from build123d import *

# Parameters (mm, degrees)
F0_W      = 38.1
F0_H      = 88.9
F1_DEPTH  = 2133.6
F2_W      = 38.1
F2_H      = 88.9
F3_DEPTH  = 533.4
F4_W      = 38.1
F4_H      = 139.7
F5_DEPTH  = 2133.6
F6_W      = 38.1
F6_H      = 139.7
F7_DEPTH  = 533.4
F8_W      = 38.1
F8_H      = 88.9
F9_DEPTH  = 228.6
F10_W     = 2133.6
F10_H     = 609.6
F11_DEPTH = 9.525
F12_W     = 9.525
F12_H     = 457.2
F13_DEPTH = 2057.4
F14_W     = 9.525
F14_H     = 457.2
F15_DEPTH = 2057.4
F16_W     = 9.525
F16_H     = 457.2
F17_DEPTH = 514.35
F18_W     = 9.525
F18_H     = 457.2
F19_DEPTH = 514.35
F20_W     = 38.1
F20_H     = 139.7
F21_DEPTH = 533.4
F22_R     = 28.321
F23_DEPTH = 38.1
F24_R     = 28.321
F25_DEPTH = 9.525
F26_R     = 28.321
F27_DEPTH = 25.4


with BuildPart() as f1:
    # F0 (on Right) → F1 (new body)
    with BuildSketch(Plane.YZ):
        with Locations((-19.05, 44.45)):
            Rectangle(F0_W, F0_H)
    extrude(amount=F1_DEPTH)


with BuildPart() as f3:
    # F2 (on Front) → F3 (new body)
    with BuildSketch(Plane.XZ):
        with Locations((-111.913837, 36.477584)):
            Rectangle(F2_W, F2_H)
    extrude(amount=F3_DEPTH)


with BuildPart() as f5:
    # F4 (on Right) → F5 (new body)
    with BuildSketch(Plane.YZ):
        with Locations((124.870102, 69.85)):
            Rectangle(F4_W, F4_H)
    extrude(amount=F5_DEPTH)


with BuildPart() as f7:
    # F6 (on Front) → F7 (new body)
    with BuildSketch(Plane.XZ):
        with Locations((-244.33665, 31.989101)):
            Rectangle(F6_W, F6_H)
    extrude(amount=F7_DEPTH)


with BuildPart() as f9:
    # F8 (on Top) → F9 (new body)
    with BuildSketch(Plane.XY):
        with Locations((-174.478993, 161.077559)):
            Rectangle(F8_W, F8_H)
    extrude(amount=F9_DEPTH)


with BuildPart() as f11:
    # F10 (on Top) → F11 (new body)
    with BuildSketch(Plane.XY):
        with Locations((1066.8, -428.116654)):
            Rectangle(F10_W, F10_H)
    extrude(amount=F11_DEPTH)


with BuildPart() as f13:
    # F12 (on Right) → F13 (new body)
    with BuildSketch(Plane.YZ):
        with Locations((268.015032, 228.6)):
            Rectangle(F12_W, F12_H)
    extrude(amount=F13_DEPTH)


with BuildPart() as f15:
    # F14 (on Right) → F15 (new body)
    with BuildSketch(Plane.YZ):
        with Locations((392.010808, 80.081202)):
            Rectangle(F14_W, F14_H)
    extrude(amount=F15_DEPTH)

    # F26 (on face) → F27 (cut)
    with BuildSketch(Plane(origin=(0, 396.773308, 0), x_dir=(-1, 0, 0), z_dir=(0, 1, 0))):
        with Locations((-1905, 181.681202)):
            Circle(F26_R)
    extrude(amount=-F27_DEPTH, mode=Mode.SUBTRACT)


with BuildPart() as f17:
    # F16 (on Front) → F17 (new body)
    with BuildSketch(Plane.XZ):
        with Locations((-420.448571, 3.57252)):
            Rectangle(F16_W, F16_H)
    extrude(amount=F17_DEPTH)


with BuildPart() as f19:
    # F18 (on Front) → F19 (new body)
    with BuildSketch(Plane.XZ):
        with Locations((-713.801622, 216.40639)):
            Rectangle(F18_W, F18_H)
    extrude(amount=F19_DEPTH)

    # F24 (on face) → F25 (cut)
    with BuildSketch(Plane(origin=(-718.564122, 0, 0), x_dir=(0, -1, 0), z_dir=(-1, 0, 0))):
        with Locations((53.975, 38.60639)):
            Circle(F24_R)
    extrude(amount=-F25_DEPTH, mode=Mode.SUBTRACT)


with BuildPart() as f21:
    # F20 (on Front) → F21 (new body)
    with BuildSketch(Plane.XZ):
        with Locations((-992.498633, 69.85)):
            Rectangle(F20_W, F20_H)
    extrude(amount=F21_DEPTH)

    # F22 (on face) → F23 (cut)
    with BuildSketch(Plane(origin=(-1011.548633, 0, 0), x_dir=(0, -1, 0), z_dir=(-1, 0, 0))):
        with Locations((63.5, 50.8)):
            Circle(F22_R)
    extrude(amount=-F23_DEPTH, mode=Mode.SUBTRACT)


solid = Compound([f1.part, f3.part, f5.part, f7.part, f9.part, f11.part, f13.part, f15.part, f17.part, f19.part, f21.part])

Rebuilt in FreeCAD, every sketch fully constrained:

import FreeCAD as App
import Part
import Sketcher

V = App.Vector
Q = App.Units.Quantity

doc = App.newDocument("Part")
body = doc.addObject("PartDesign::Body", "Body")

# Sketch on YZ plane
sketch1 = body.newObject("Sketcher::SketchObject", "Sketch")
sketch1.AttachmentSupport = (doc.getObject("YZ_Plane"), [""])
sketch1.MapMode = "FlatFace"
sketch1.addGeometry(Part.LineSegment(V(-38.1, 88.9, 0), V(-38.1, 0, 0)), False)
sketch1.addGeometry(Part.LineSegment(V(-38.1, 0, 0), V(0, 0, 0)), False)
sketch1.addGeometry(Part.LineSegment(V(0, 0, 0), V(0, 88.9, 0)), False)
sketch1.addGeometry(Part.LineSegment(V(0, 88.9, 0), V(-38.1, 88.9, 0)), False)
sketch1.addConstraint(Sketcher.Constraint("Coincident", 0, 2, 1, 1))
sketch1.addConstraint(Sketcher.Constraint("Coincident", 1, 2, 2, 1))
sketch1.addConstraint(Sketcher.Constraint("Coincident", 2, 2, 3, 1))
sketch1.addConstraint(Sketcher.Constraint("Coincident", 3, 2, 0, 1))
sketch1.addConstraint(Sketcher.Constraint("Vertical", 0))
sketch1.addConstraint(Sketcher.Constraint("Horizontal", 1))
sketch1.addConstraint(Sketcher.Constraint("Vertical", 2))
sketch1.addConstraint(Sketcher.Constraint("Horizontal", 3))
sketch1.addConstraint(Sketcher.Constraint("Coincident", 1, 2, -1, 1))
sketch1.addConstraint(Sketcher.Constraint("DistanceX", 1, 1, 1, 2, Q("1.5 in")))
sketch1.addConstraint(Sketcher.Constraint("DistanceY", 0, 2, 0, 1, Q("3.5 in")))
pad1 = body.newObject("PartDesign::Pad", "Pad")
pad1.Profile = sketch1
pad1.Length = Q("84 in")
body2 = doc.addObject("PartDesign::Body", "Body001")

# Sketch on XZ plane
sketch2 = body2.newObject("Sketcher::SketchObject", "Sketch001")
sketch2.AttachmentSupport = (doc.getObject("XZ_Plane001"), [""])
sketch2.MapMode = "FlatFace"
sketch2.addGeometry(Part.LineSegment(V(-130.963837, 80.927584, 0), V(-130.963837, -7.972416, 0)), False)
sketch2.addGeometry(Part.LineSegment(V(-130.963837, -7.972416, 0), V(-92.863837, -7.972416, 0)), False)
sketch2.addGeometry(Part.LineSegment(V(-92.863837, -7.972416, 0), V(-92.863837, 80.927584, 0)), False)
sketch2.addGeometry(Part.LineSegment(V(-92.863837, 80.927584, 0), V(-130.963837, 80.927584, 0)), False)
sketch2.addConstraint(Sketcher.Constraint("Coincident", 0, 2, 1, 1))
sketch2.addConstraint(Sketcher.Constraint("Coincident", 1, 2, 2, 1))
sketch2.addConstraint(Sketcher.Constraint("Coincident", 2, 2, 3, 1))
sketch2.addConstraint(Sketcher.Constraint("Coincident", 3, 2, 0, 1))
sketch2.addConstraint(Sketcher.Constraint("Vertical", 0))
sketch2.addConstraint(Sketcher.Constraint("Horizontal", 1))
sketch2.addConstraint(Sketcher.Constraint("Vertical", 2))
sketch2.addConstraint(Sketcher.Constraint("Horizontal", 3))
sketch2.addConstraint(Sketcher.Constraint("DistanceX", 1, 1, 1, 2, Q("1.5 in")))
sketch2.addConstraint(Sketcher.Constraint("DistanceY", 0, 2, 0, 1, Q("3.5 in")))
sketch2.addConstraint(Sketcher.Constraint("DistanceX", 0, 2, -1, 1, Q("130.963837 mm")))
sketch2.addConstraint(Sketcher.Constraint("DistanceY", 0, 2, -1, 1, Q("7.972416 mm")))
pad2 = body2.newObject("PartDesign::Pad", "Pad001")
pad2.Profile = sketch2
pad2.Length = Q("21 in")
body3 = doc.addObject("PartDesign::Body", "Body002")

# Sketch on YZ plane
sketch3 = body3.newObject("Sketcher::SketchObject", "Sketch002")
sketch3.AttachmentSupport = (doc.getObject("YZ_Plane002"), [""])
sketch3.MapMode = "FlatFace"
sketch3.addGeometry(Part.LineSegment(V(105.820102, 139.7, 0), V(105.820102, 0, 0)), False)
sketch3.addGeometry(Part.LineSegment(V(105.820102, 0, 0), V(143.920102, 0, 0)), False)
sketch3.addGeometry(Part.LineSegment(V(143.920102, 0, 0), V(143.920102, 139.7, 0)), False)
sketch3.addGeometry(Part.LineSegment(V(143.920102, 139.7, 0), V(105.820102, 139.7, 0)), False)
sketch3.addConstraint(Sketcher.Constraint("Coincident", 0, 2, 1, 1))
sketch3.addConstraint(Sketcher.Constraint("Coincident", 1, 2, 2, 1))
sketch3.addConstraint(Sketcher.Constraint("Coincident", 2, 2, 3, 1))
sketch3.addConstraint(Sketcher.Constraint("Coincident", 3, 2, 0, 1))
sketch3.addConstraint(Sketcher.Constraint("Vertical", 0))
sketch3.addConstraint(Sketcher.Constraint("Horizontal", 1))
sketch3.addConstraint(Sketcher.Constraint("Vertical", 2))
sketch3.addConstraint(Sketcher.Constraint("Horizontal", 3))
sketch3.addConstraint(Sketcher.Constraint("PointOnObject", 0, 2, -1))
sketch3.addConstraint(Sketcher.Constraint("DistanceX", 1, 1, 1, 2, Q("1.5 in")))
sketch3.addConstraint(Sketcher.Constraint("DistanceY", 0, 2, 0, 1, Q("5.5 in")))
sketch3.addConstraint(Sketcher.Constraint("DistanceX", -1, 1, 0, 2, Q("105.820102 mm")))
pad3 = body3.newObject("PartDesign::Pad", "Pad002")
pad3.Profile = sketch3
pad3.Length = Q("84 in")
body4 = doc.addObject("PartDesign::Body", "Body003")

# Sketch on XZ plane
sketch4 = body4.newObject("Sketcher::SketchObject", "Sketch003")
sketch4.AttachmentSupport = (doc.getObject("XZ_Plane003"), [""])
sketch4.MapMode = "FlatFace"
sketch4.addGeometry(Part.LineSegment(V(-263.38665, 101.839101, 0), V(-263.38665, -37.860899, 0)), False)
sketch4.addGeometry(Part.LineSegment(V(-263.38665, -37.860899, 0), V(-225.28665, -37.860899, 0)), False)
sketch4.addGeometry(Part.LineSegment(V(-225.28665, -37.860899, 0), V(-225.28665, 101.839101, 0)), False)
sketch4.addGeometry(Part.LineSegment(V(-225.28665, 101.839101, 0), V(-263.38665, 101.839101, 0)), False)
sketch4.addConstraint(Sketcher.Constraint("Coincident", 0, 2, 1, 1))
sketch4.addConstraint(Sketcher.Constraint("Coincident", 1, 2, 2, 1))
sketch4.addConstraint(Sketcher.Constraint("Coincident", 2, 2, 3, 1))
sketch4.addConstraint(Sketcher.Constraint("Coincident", 3, 2, 0, 1))
sketch4.addConstraint(Sketcher.Constraint("Vertical", 0))
sketch4.addConstraint(Sketcher.Constraint("Horizontal", 1))
sketch4.addConstraint(Sketcher.Constraint("Vertical", 2))
sketch4.addConstraint(Sketcher.Constraint("Horizontal", 3))
sketch4.addConstraint(Sketcher.Constraint("DistanceX", 1, 1, 1, 2, Q("1.5 in")))
sketch4.addConstraint(Sketcher.Constraint("DistanceY", 0, 2, 0, 1, Q("5.5 in")))
sketch4.addConstraint(Sketcher.Constraint("DistanceY", 0, 2, -1, 1, Q("37.860899 mm")))
sketch4.addConstraint(Sketcher.Constraint("DistanceX", 0, 2, -1, 1, Q("263.38665 mm")))
pad4 = body4.newObject("PartDesign::Pad", "Pad003")
pad4.Profile = sketch4
pad4.Length = Q("21 in")
body5 = doc.addObject("PartDesign::Body", "Body004")

# Sketch on XY plane
sketch5 = body5.newObject("Sketcher::SketchObject", "Sketch004")
sketch5.AttachmentSupport = (doc.getObject("XY_Plane004"), [""])
sketch5.MapMode = "FlatFace"
sketch5.addGeometry(Part.LineSegment(V(-193.528993, 205.527559, 0), V(-193.528993, 116.627559, 0)), False)
sketch5.addGeometry(Part.LineSegment(V(-193.528993, 116.627559, 0), V(-155.428993, 116.627559, 0)), False)
sketch5.addGeometry(Part.LineSegment(V(-155.428993, 116.627559, 0), V(-155.428993, 205.527559, 0)), False)
sketch5.addGeometry(Part.LineSegment(V(-155.428993, 205.527559, 0), V(-193.528993, 205.527559, 0)), False)
sketch5.addConstraint(Sketcher.Constraint("Coincident", 0, 2, 1, 1))
sketch5.addConstraint(Sketcher.Constraint("Coincident", 1, 2, 2, 1))
sketch5.addConstraint(Sketcher.Constraint("Coincident", 2, 2, 3, 1))
sketch5.addConstraint(Sketcher.Constraint("Coincident", 3, 2, 0, 1))
sketch5.addConstraint(Sketcher.Constraint("Vertical", 0))
sketch5.addConstraint(Sketcher.Constraint("Horizontal", 1))
sketch5.addConstraint(Sketcher.Constraint("Vertical", 2))
sketch5.addConstraint(Sketcher.Constraint("Horizontal", 3))
sketch5.addConstraint(Sketcher.Constraint("DistanceX", 1, 1, 1, 2, Q("1.5 in")))
sketch5.addConstraint(Sketcher.Constraint("DistanceY", 0, 2, 0, 1, Q("3.5 in")))
sketch5.addConstraint(Sketcher.Constraint("DistanceY", -1, 1, 0, 2, Q("116.627559 mm")))
sketch5.addConstraint(Sketcher.Constraint("DistanceX", 0, 2, -1, 1, Q("193.528993 mm")))
pad5 = body5.newObject("PartDesign::Pad", "Pad004")
pad5.Profile = sketch5
pad5.Length = Q("9 in")
body6 = doc.addObject("PartDesign::Body", "Body005")

# Sketch on XY plane
sketch6 = body6.newObject("Sketcher::SketchObject", "Sketch005")
sketch6.AttachmentSupport = (doc.getObject("XY_Plane005"), [""])
sketch6.MapMode = "FlatFace"
sketch6.addGeometry(Part.LineSegment(V(0, -123.316654, 0), V(0, -732.916654, 0)), False)
sketch6.addGeometry(Part.LineSegment(V(0, -732.916654, 0), V(2133.6, -732.916654, 0)), False)
sketch6.addGeometry(Part.LineSegment(V(2133.6, -732.916654, 0), V(2133.6, -123.316654, 0)), False)
sketch6.addGeometry(Part.LineSegment(V(2133.6, -123.316654, 0), V(0, -123.316654, 0)), False)
sketch6.addConstraint(Sketcher.Constraint("Coincident", 0, 2, 1, 1))
sketch6.addConstraint(Sketcher.Constraint("Coincident", 1, 2, 2, 1))
sketch6.addConstraint(Sketcher.Constraint("Coincident", 2, 2, 3, 1))
sketch6.addConstraint(Sketcher.Constraint("Coincident", 3, 2, 0, 1))
sketch6.addConstraint(Sketcher.Constraint("Vertical", 0))
sketch6.addConstraint(Sketcher.Constraint("Horizontal", 1))
sketch6.addConstraint(Sketcher.Constraint("Vertical", 2))
sketch6.addConstraint(Sketcher.Constraint("Horizontal", 3))
sketch6.addConstraint(Sketcher.Constraint("PointOnObject", 0, 2, -2))
sketch6.addConstraint(Sketcher.Constraint("DistanceX", 1, 1, 1, 2, Q("84 in")))
sketch6.addConstraint(Sketcher.Constraint("DistanceY", 0, 2, 0, 1, Q("24 in")))
sketch6.addConstraint(Sketcher.Constraint("DistanceY", 0, 2, -1, 1, Q("732.916654 mm")))
pad6 = body6.newObject("PartDesign::Pad", "Pad005")
pad6.Profile = sketch6
pad6.Length = Q("0.375 in")
body7 = doc.addObject("PartDesign::Body", "Body006")

# Sketch on YZ plane
sketch7 = body7.newObject("Sketcher::SketchObject", "Sketch006")
sketch7.AttachmentSupport = (doc.getObject("YZ_Plane006"), [""])
sketch7.MapMode = "FlatFace"
sketch7.addGeometry(Part.LineSegment(V(263.252532, 457.2, 0), V(263.252532, 0, 0)), False)
sketch7.addGeometry(Part.LineSegment(V(263.252532, 0, 0), V(272.777532, 0, 0)), False)
sketch7.addGeometry(Part.LineSegment(V(272.777532, 0, 0), V(272.777532, 457.2, 0)), False)
sketch7.addGeometry(Part.LineSegment(V(272.777532, 457.2, 0), V(263.252532, 457.2, 0)), False)
sketch7.addConstraint(Sketcher.Constraint("Coincident", 0, 2, 1, 1))
sketch7.addConstraint(Sketcher.Constraint("Coincident", 1, 2, 2, 1))
sketch7.addConstraint(Sketcher.Constraint("Coincident", 2, 2, 3, 1))
sketch7.addConstraint(Sketcher.Constraint("Coincident", 3, 2, 0, 1))
sketch7.addConstraint(Sketcher.Constraint("Vertical", 0))
sketch7.addConstraint(Sketcher.Constraint("Horizontal", 1))
sketch7.addConstraint(Sketcher.Constraint("Vertical", 2))
sketch7.addConstraint(Sketcher.Constraint("Horizontal", 3))
sketch7.addConstraint(Sketcher.Constraint("PointOnObject", 0, 2, -1))
sketch7.addConstraint(Sketcher.Constraint("DistanceY", 0, 2, 0, 1, Q("18 in")))
sketch7.addConstraint(Sketcher.Constraint("DistanceX", 1, 1, 1, 2, Q("0.375 in")))
sketch7.addConstraint(Sketcher.Constraint("DistanceX", -1, 1, 0, 2, Q("263.252532 mm")))
pad7 = body7.newObject("PartDesign::Pad", "Pad006")
pad7.Profile = sketch7
pad7.Length = Q("81 in")
body8 = doc.addObject("PartDesign::Body", "Body007")

# Sketch on YZ plane
sketch8 = body8.newObject("Sketcher::SketchObject", "Sketch007")
sketch8.AttachmentSupport = (doc.getObject("YZ_Plane007"), [""])
sketch8.MapMode = "FlatFace"
sketch8.addGeometry(Part.LineSegment(V(387.248308, 308.681202, 0), V(387.248308, -148.518798, 0)), False)
sketch8.addGeometry(Part.LineSegment(V(387.248308, -148.518798, 0), V(396.773308, -148.518798, 0)), False)
sketch8.addGeometry(Part.LineSegment(V(396.773308, -148.518798, 0), V(396.773308, 308.681202, 0)), False)
sketch8.addGeometry(Part.LineSegment(V(396.773308, 308.681202, 0), V(387.248308, 308.681202, 0)), False)
sketch8.addConstraint(Sketcher.Constraint("Coincident", 0, 2, 1, 1))
sketch8.addConstraint(Sketcher.Constraint("Coincident", 1, 2, 2, 1))
sketch8.addConstraint(Sketcher.Constraint("Coincident", 2, 2, 3, 1))
sketch8.addConstraint(Sketcher.Constraint("Coincident", 3, 2, 0, 1))
sketch8.addConstraint(Sketcher.Constraint("Vertical", 0))
sketch8.addConstraint(Sketcher.Constraint("Horizontal", 1))
sketch8.addConstraint(Sketcher.Constraint("Vertical", 2))
sketch8.addConstraint(Sketcher.Constraint("Horizontal", 3))
sketch8.addConstraint(Sketcher.Constraint("DistanceY", 0, 2, 0, 1, Q("18 in")))
sketch8.addConstraint(Sketcher.Constraint("DistanceX", 1, 1, 1, 2, Q("0.375 in")))
sketch8.addConstraint(Sketcher.Constraint("DistanceY", 0, 2, -1, 1, Q("148.518798 mm")))
sketch8.addConstraint(Sketcher.Constraint("DistanceX", -1, 1, 0, 2, Q("387.248308 mm")))
pad8 = body8.newObject("PartDesign::Pad", "Pad007")
pad8.Profile = sketch8
pad8.Length = Q("81 in")

# Sketch on XZ plane
sketch9 = body8.newObject("Sketcher::SketchObject", "Sketch008")
sketch9.AttachmentSupport = (doc.getObject("XZ_Plane007"), [""])
sketch9.MapMode = "FlatFace"
sketch9.AttachmentOffset = App.Placement(V(0, 0, -396.773308), App.Rotation())
sketch9.addGeometry(Part.Circle(V(1905, 181.681202, 0), V(0, 0, 1), 28.321), False)
sketch9.addConstraint(Sketcher.Constraint("Diameter", 0, Q("2.23 in")))
sketch9.addConstraint(Sketcher.Constraint("DistanceX", -1, 1, 0, 3, Q("75 in")))
sketch9.addConstraint(Sketcher.Constraint("DistanceY", -1, 1, 0, 3, Q("181.681202 mm")))
pocket1 = body8.newObject("PartDesign::Pocket", "Pocket")
pocket1.Profile = sketch9
pocket1.Length = Q("1 in")
pocket1.Reversed = True
body9 = doc.addObject("PartDesign::Body", "Body008")

# Sketch on XZ plane
sketch10 = body9.newObject("Sketcher::SketchObject", "Sketch009")
sketch10.AttachmentSupport = (doc.getObject("XZ_Plane008"), [""])
sketch10.MapMode = "FlatFace"
sketch10.addGeometry(Part.LineSegment(V(-425.211071, 232.17252, 0), V(-425.211071, -225.02748, 0)), False)
sketch10.addGeometry(Part.LineSegment(V(-425.211071, -225.02748, 0), V(-415.686071, -225.02748, 0)), False)
sketch10.addGeometry(Part.LineSegment(V(-415.686071, -225.02748, 0), V(-415.686071, 232.17252, 0)), False)
sketch10.addGeometry(Part.LineSegment(V(-415.686071, 232.17252, 0), V(-425.211071, 232.17252, 0)), False)
sketch10.addConstraint(Sketcher.Constraint("Coincident", 0, 2, 1, 1))
sketch10.addConstraint(Sketcher.Constraint("Coincident", 1, 2, 2, 1))
sketch10.addConstraint(Sketcher.Constraint("Coincident", 2, 2, 3, 1))
sketch10.addConstraint(Sketcher.Constraint("Coincident", 3, 2, 0, 1))
sketch10.addConstraint(Sketcher.Constraint("Vertical", 0))
sketch10.addConstraint(Sketcher.Constraint("Horizontal", 1))
sketch10.addConstraint(Sketcher.Constraint("Vertical", 2))
sketch10.addConstraint(Sketcher.Constraint("Horizontal", 3))
sketch10.addConstraint(Sketcher.Constraint("DistanceY", 0, 2, 0, 1, Q("18 in")))
sketch10.addConstraint(Sketcher.Constraint("DistanceX", 1, 1, 1, 2, Q("0.375 in")))
sketch10.addConstraint(Sketcher.Constraint("DistanceX", 0, 2, -1, 1, Q("425.211071 mm")))
sketch10.addConstraint(Sketcher.Constraint("DistanceY", 0, 2, -1, 1, Q("225.02748 mm")))
pad9 = body9.newObject("PartDesign::Pad", "Pad008")
pad9.Profile = sketch10
pad9.Length = Q("20.25 in")
body10 = doc.addObject("PartDesign::Body", "Body009")

# Sketch on XZ plane
sketch11 = body10.newObject("Sketcher::SketchObject", "Sketch010")
sketch11.AttachmentSupport = (doc.getObject("XZ_Plane009"), [""])
sketch11.MapMode = "FlatFace"
sketch11.addGeometry(Part.LineSegment(V(-718.564122, 445.00639, 0), V(-718.564122, -12.19361, 0)), False)
sketch11.addGeometry(Part.LineSegment(V(-718.564122, -12.19361, 0), V(-709.039122, -12.19361, 0)), False)
sketch11.addGeometry(Part.LineSegment(V(-709.039122, -12.19361, 0), V(-709.039122, 445.00639, 0)), False)
sketch11.addGeometry(Part.LineSegment(V(-709.039122, 445.00639, 0), V(-718.564122, 445.00639, 0)), False)
sketch11.addConstraint(Sketcher.Constraint("Coincident", 0, 2, 1, 1))
sketch11.addConstraint(Sketcher.Constraint("Coincident", 1, 2, 2, 1))
sketch11.addConstraint(Sketcher.Constraint("Coincident", 2, 2, 3, 1))
sketch11.addConstraint(Sketcher.Constraint("Coincident", 3, 2, 0, 1))
sketch11.addConstraint(Sketcher.Constraint("Vertical", 0))
sketch11.addConstraint(Sketcher.Constraint("Horizontal", 1))
sketch11.addConstraint(Sketcher.Constraint("Vertical", 2))
sketch11.addConstraint(Sketcher.Constraint("Horizontal", 3))
sketch11.addConstraint(Sketcher.Constraint("DistanceY", 0, 2, 0, 1, Q("18 in")))
sketch11.addConstraint(Sketcher.Constraint("DistanceX", 1, 1, 1, 2, Q("0.375 in")))
sketch11.addConstraint(Sketcher.Constraint("DistanceX", 0, 2, -1, 1, Q("718.564122 mm")))
sketch11.addConstraint(Sketcher.Constraint("DistanceY", 0, 2, -1, 1, Q("12.19361 mm")))
pad10 = body10.newObject("PartDesign::Pad", "Pad009")
pad10.Profile = sketch11
pad10.Length = Q("20.25 in")

# Sketch on YZ plane
sketch12 = body10.newObject("Sketcher::SketchObject", "Sketch011")
sketch12.AttachmentSupport = (doc.getObject("YZ_Plane009"), [""])
sketch12.MapMode = "FlatFace"
sketch12.AttachmentOffset = App.Placement(V(0, 0, -718.564122), App.Rotation())
sketch12.addGeometry(Part.Circle(V(-53.975, 38.60639, 0), V(0, 0, 1), 28.321), False)
sketch12.addConstraint(Sketcher.Constraint("Diameter", 0, Q("2.23 in")))
sketch12.addConstraint(Sketcher.Constraint("DistanceX", 0, 3, -1, 1, Q("2.125 in")))
sketch12.addConstraint(Sketcher.Constraint("DistanceY", -1, 1, 0, 3, Q("38.60639 mm")))
pocket2 = body10.newObject("PartDesign::Pocket", "Pocket001")
pocket2.Profile = sketch12
pocket2.Length = Q("0.375 in")
pocket2.Reversed = True
body11 = doc.addObject("PartDesign::Body", "Body010")

# Sketch on XZ plane
sketch13 = body11.newObject("Sketcher::SketchObject", "Sketch012")
sketch13.AttachmentSupport = (doc.getObject("XZ_Plane010"), [""])
sketch13.MapMode = "FlatFace"
sketch13.addGeometry(Part.LineSegment(V(-1011.548633, 139.7, 0), V(-1011.548633, 0, 0)), False)
sketch13.addGeometry(Part.LineSegment(V(-1011.548633, 0, 0), V(-973.448633, 0, 0)), False)
sketch13.addGeometry(Part.LineSegment(V(-973.448633, 0, 0), V(-973.448633, 139.7, 0)), False)
sketch13.addGeometry(Part.LineSegment(V(-973.448633, 139.7, 0), V(-1011.548633, 139.7, 0)), False)
sketch13.addConstraint(Sketcher.Constraint("Coincident", 0, 2, 1, 1))
sketch13.addConstraint(Sketcher.Constraint("Coincident", 1, 2, 2, 1))
sketch13.addConstraint(Sketcher.Constraint("Coincident", 2, 2, 3, 1))
sketch13.addConstraint(Sketcher.Constraint("Coincident", 3, 2, 0, 1))
sketch13.addConstraint(Sketcher.Constraint("Vertical", 0))
sketch13.addConstraint(Sketcher.Constraint("Horizontal", 1))
sketch13.addConstraint(Sketcher.Constraint("Vertical", 2))
sketch13.addConstraint(Sketcher.Constraint("Horizontal", 3))
sketch13.addConstraint(Sketcher.Constraint("PointOnObject", 0, 2, -1))
sketch13.addConstraint(Sketcher.Constraint("DistanceX", 1, 1, 1, 2, Q("1.5 in")))
sketch13.addConstraint(Sketcher.Constraint("DistanceY", 0, 2, 0, 1, Q("5.5 in")))
sketch13.addConstraint(Sketcher.Constraint("DistanceX", 0, 2, -1, 1, Q("1011.548633 mm")))
pad11 = body11.newObject("PartDesign::Pad", "Pad010")
pad11.Profile = sketch13
pad11.Length = Q("21 in")

# Sketch on YZ plane
sketch14 = body11.newObject("Sketcher::SketchObject", "Sketch013")
sketch14.AttachmentSupport = (doc.getObject("YZ_Plane010"), [""])
sketch14.MapMode = "FlatFace"
sketch14.AttachmentOffset = App.Placement(V(0, 0, -1011.548633), App.Rotation())
sketch14.addGeometry(Part.Circle(V(-63.5, 50.8, 0), V(0, 0, 1), 28.321), False)
sketch14.addConstraint(Sketcher.Constraint("Diameter", 0, Q("2.23 in")))
sketch14.addConstraint(Sketcher.Constraint("DistanceY", -1, 1, 0, 3, Q("2 in")))
sketch14.addConstraint(Sketcher.Constraint("DistanceX", 0, 3, -1, 1, Q("2.5 in")))
pocket3 = body11.newObject("PartDesign::Pocket", "Pocket002")
pocket3.Profile = sketch14
pocket3.Length = Q("1.5 in")
pocket3.Reversed = True

doc.recompute()
